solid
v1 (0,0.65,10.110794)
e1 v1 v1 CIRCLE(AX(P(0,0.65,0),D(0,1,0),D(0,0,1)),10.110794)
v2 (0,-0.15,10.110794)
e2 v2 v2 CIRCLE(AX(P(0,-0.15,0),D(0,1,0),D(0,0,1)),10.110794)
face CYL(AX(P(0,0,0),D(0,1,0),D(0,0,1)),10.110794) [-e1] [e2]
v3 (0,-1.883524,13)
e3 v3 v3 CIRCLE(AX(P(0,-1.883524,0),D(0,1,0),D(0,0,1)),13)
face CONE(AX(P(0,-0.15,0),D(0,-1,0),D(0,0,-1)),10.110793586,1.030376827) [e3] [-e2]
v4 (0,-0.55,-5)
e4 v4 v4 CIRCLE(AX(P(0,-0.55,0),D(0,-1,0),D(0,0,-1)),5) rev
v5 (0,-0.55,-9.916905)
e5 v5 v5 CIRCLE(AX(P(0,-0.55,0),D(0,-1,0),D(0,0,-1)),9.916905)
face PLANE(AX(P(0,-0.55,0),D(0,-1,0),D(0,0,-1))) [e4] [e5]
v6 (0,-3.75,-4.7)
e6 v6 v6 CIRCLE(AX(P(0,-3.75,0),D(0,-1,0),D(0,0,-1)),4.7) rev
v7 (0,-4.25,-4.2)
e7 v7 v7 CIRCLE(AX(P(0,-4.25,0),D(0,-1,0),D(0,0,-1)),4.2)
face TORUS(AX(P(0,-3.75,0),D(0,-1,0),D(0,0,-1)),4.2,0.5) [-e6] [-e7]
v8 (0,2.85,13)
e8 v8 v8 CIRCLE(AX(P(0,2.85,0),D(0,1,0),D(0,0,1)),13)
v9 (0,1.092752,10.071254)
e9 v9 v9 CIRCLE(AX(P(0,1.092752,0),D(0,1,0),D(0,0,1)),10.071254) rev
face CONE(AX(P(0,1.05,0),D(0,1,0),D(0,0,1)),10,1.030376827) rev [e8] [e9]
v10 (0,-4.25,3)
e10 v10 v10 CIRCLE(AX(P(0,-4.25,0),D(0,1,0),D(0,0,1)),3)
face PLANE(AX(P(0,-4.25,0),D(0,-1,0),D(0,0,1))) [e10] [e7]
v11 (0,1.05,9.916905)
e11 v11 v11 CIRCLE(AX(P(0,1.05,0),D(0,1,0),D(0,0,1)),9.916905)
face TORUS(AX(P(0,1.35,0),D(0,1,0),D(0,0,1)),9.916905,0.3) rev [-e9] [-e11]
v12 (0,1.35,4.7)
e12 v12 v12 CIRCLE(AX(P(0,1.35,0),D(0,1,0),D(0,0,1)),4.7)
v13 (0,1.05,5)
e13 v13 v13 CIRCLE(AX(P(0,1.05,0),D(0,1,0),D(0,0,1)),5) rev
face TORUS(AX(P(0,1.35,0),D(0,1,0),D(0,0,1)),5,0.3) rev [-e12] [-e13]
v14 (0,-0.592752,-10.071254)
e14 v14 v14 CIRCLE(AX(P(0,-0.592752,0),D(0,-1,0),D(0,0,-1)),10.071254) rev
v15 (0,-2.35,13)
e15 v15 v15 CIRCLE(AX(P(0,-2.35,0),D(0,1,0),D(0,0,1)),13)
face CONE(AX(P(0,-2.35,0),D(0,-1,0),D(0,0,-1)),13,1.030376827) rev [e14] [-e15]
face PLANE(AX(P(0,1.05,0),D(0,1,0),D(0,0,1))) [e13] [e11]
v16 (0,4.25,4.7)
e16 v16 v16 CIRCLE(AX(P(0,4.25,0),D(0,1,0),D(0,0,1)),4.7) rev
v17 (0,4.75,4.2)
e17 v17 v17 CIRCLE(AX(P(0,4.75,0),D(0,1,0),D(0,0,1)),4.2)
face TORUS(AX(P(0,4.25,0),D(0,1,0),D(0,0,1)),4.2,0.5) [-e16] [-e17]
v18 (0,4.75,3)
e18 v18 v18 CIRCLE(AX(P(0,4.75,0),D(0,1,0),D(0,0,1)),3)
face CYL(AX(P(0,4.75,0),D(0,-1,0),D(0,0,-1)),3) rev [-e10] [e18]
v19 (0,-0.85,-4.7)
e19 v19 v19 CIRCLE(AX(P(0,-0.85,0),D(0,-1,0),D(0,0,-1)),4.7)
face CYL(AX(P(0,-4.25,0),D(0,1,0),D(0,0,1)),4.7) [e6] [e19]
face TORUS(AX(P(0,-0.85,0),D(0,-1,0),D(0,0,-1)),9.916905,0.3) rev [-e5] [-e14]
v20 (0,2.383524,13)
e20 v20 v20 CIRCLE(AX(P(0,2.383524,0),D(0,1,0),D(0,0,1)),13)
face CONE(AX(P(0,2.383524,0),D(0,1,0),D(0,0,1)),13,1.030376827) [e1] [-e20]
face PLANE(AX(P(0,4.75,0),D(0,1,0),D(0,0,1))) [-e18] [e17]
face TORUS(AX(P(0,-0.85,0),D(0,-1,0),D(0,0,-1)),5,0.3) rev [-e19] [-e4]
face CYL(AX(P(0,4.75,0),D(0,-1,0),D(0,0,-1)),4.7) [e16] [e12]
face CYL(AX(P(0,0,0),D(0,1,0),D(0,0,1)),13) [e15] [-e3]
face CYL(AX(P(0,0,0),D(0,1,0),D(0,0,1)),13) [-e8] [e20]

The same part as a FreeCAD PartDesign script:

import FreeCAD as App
import Part
import Sketcher

V = App.Vector


def edges_at(feature, points):
    """Names of the edges that pass closest to the given points."""
    edges = feature.Shape.Edges
    near = lambda p: min(range(len(edges)), key=lambda i: edges[i].distToShape(Part.Vertex(*p))[0])
    return sorted({f"Edge{near(p) + 1}" for p in points})


def add_polygon(sketch, points):
    """Adds a closed chain of lines whose ends are joined by coincident constraints."""
    first, n = sketch.GeometryCount, len(points)
    for a, b in zip(points, points[1:] + points[:1]):
        sketch.addGeometry(Part.LineSegment(App.Vector(*a, 0), App.Vector(*b, 0)), False)
    for i in range(n):
        sketch.addConstraint(Sketcher.Constraint("Coincident", first + i, 2, first + (i + 1) % n, 1))

doc = App.newDocument("Part")
body = doc.addObject("PartDesign::Body", "Body")

sketch1 = body.newObject("Sketcher::SketchObject", "Sketch")
sketch1.AttachmentSupport = (doc.getObject("YZ_Plane"), [""])
sketch1.MapMode = "FlatFace"
add_polygon(sketch1, [(-1.88, 13), (-2.35, 13), (-0.55, 10), (-0.55, 0), (1.05, 0), (1.05, 10), (2.85, 13), (2.38, 13), (0.65, 10.11), (-0.15, 10.11)])
sketch1.addConstraint(Sketcher.Constraint("Horizontal", 0))
sketch1.addConstraint(Sketcher.Constraint("Vertical", 2))
sketch1.addConstraint(Sketcher.Constraint("Horizontal", 3))
sketch1.addConstraint(Sketcher.Constraint("Vertical", 4))
sketch1.addConstraint(Sketcher.Constraint("Horizontal", 6))
sketch1.addConstraint(Sketcher.Constraint("Horizontal", 8))
sketch1.addConstraint(Sketcher.Constraint("PointOnObject", 2, 2, -1))
sketch1.addConstraint(Sketcher.Constraint("Parallel", 5, 7))
sketch1.addConstraint(Sketcher.Constraint("Parallel", 1, 9))
sketch1.addConstraint(Sketcher.Constraint("Horizontal", 1, 2, 4, 2))
sketch1.addConstraint(Sketcher.Constraint("Horizontal", 0, 2, 5, 2))
sketch1.addConstraint(Sketcher.Constraint("Equal", 0, 6))
sketch1.addConstraint(Sketcher.Constraint("Equal", 1, 5))
sketch1.addConstraint(Sketcher.Constraint("DistanceY", 2, 2, 2, 1, 10.0))
sketch1.addConstraint(Sketcher.Constraint("DistanceX", 3, 1, 3, 2, 1.6))
sketch1.addConstraint(Sketcher.Constraint("DistanceX", 8, 2, 8, 1, 0.8))
sketch1.addConstraint(Sketcher.Constraint("DistanceY", -1, 1, 0, 2, 13.0))
sketch1.addConstraint(Sketcher.Constraint("DistanceX", 0, 2, 7, 2, 3.0))
sketch1.addConstraint(Sketcher.Constraint("DistanceX", 0, 2, -1, 1, 2.35))
sketch1.addConstraint(Sketcher.Constraint("DistanceX", 0, 2, 0, 1, 0.466476))
revolution = body.newObject("PartDesign::Revolution", "Revolution")
revolution.Profile = sketch1
revolution.ReferenceAxis = (sketch1, ["H_Axis"])
revolution.Angle = 360

sketch2 = body.newObject("Sketcher::SketchObject", "Sketch001")
sketch2.AttachmentSupport = (doc.getObject("XZ_Plane"), [""])
sketch2.MapMode = "FlatFace"
sketch2.AttachmentOffset = App.Placement(V(0, 0, -1.05), App.Rotation())
sketch2.addGeometry(Part.Circle(V(0, 0, 0), V(0, 0, 1), 4.7), False)
sketch2.addGeometry(Part.Circle(V(0, 0, 0), V(0, 0, 1), 3), False)
sketch2.addConstraint(Sketcher.Constraint("Coincident", 0, 3, -1, 1))
sketch2.addConstraint(Sketcher.Constraint("Coincident", 1, 3, -1, 1))
sketch2.addConstraint(Sketcher.Constraint("Diameter", 1, 6.0))
sketch2.addConstraint(Sketcher.Constraint("Diameter", 0, 9.4))
pad1 = body.newObject("PartDesign::Pad", "Pad")
pad1.Profile = sketch2
pad1.Length = 3.7
pad1.Reversed = True

sketch3 = body.newObject("Sketcher::SketchObject", "Sketch002")
sketch3.AttachmentSupport = (doc.getObject("XZ_Plane"), [""])
sketch3.MapMode = "FlatFace"
sketch3.AttachmentOffset = App.Placement(V(0, 0, -1.05), App.Rotation())
sketch3.addGeometry(Part.Circle(V(0, 0, 0), V(0, 0, 1), 3), False)
sketch3.addConstraint(Sketcher.Constraint("Coincident", 0, 3, -1, 1))
sketch3.addConstraint(Sketcher.Constraint("Diameter", 0, 6.0))
pocket1 = body.newObject("PartDesign::Pocket", "Pocket")
pocket1.Profile = sketch3
pocket1.Type = "ThroughAll"
pocket1.Reversed = True
doc.recompute()

datumplane = body.newObject("PartDesign::Plane", "DatumPlane")
datumplane.AttachmentSupport = (doc.getObject("XZ_Plane"), [""])
datumplane.MapMode = "FlatFace"
datumplane.AttachmentOffset = App.Placement(V(0, 0, -0.25), App.Rotation())
mirrored = body.newObject("PartDesign::Mirrored", "Mirrored")
mirrored.Originals = [pad1]
mirrored.MirrorPlane = (datumplane, [""])
body.Tip = mirrored
doc.recompute()

fillet = body.newObject("PartDesign::Fillet", "Fillet")
fillet.Base = (mirrored, edges_at(mirrored, [(0, 4.75, -4.7), (0, -4.25, -4.7)]))
fillet.Radius = 0.5
doc.recompute()

fillet2 = body.newObject("PartDesign::Fillet", "Fillet001")
fillet2.Base = (fillet, edges_at(fillet, [
    (0, 1.05, -4.7),
    (0, -0.55, -4.7),
    (0, 1.05, -10),
    (0, -0.55, -10),
]))
fillet2.Radius = 0.3

doc.recompute()
